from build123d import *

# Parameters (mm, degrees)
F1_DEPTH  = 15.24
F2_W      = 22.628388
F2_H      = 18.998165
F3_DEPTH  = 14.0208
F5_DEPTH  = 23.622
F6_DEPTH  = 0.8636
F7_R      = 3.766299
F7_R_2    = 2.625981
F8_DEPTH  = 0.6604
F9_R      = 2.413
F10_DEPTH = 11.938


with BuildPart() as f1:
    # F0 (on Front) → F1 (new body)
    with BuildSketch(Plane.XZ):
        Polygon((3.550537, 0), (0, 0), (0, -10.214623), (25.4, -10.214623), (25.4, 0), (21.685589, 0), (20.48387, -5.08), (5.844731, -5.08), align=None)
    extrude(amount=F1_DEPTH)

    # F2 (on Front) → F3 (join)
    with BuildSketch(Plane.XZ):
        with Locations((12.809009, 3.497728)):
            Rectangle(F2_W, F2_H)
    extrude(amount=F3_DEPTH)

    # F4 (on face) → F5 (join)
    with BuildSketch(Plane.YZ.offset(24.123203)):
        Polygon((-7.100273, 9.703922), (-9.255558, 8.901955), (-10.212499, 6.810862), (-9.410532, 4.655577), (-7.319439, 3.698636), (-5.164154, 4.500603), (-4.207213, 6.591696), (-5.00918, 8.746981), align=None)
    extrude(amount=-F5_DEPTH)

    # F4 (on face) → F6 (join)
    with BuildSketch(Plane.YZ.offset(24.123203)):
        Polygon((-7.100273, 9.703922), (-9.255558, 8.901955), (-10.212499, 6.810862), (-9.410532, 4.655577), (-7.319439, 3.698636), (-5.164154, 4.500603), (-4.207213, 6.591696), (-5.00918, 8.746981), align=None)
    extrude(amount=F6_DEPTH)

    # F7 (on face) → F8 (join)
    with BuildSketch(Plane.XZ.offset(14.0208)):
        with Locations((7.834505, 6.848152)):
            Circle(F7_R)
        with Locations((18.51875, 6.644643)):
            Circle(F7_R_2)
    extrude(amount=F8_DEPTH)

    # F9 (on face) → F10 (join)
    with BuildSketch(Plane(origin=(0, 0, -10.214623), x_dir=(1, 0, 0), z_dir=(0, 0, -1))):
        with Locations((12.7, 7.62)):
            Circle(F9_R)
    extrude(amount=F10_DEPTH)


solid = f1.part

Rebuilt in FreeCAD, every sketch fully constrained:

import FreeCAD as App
import Part
import Sketcher
Q = App.Units.Quantity

doc = App.newDocument("Part")
body = doc.addObject("PartDesign::Body", "Body")

sketch1 = doc.addObject("Sketcher::SketchObject", "Sketch")
body.addObject(sketch1)
sketch1.AttachmentSupport = (doc.XZ_Plane, [""])
sketch1.MapMode = "FlatFace"
sketch1.addGeometry(Part.LineSegment(App.Vector(3.6, 0, 0), App.Vector(0, 0, 0)), False)
sketch1.addGeometry(Part.LineSegment(App.Vector(0, 0, 0), App.Vector(0, -10.2, 0)), False)
sketch1.addGeometry(Part.LineSegment(App.Vector(0, -10.2, 0), App.Vector(25.4, -10.2, 0)), False)
sketch1.addGeometry(Part.LineSegment(App.Vector(25.4, -10.2, 0), App.Vector(25.4, 0, 0)), False)
sketch1.addGeometry(Part.LineSegment(App.Vector(25.4, 0, 0), App.Vector(21.7, 0, 0)), False)
sketch1.addGeometry(Part.LineSegment(App.Vector(21.7, 0, 0), App.Vector(20.5, -5.1, 0)), False)
sketch1.addGeometry(Part.LineSegment(App.Vector(20.5, -5.1, 0), App.Vector(5.8, -5.1, 0)), False)
sketch1.addGeometry(Part.LineSegment(App.Vector(5.8, -5.1, 0), App.Vector(3.6, 0, 0)), False)
sketch1.addConstraint(Sketcher.Constraint("Coincident", 0, 2, 1, 1))
sketch1.addConstraint(Sketcher.Constraint("Coincident", 1, 2, 2, 1))
sketch1.addConstraint(Sketcher.Constraint("Coincident", 2, 2, 3, 1))
sketch1.addConstraint(Sketcher.Constraint("Coincident", 3, 2, 4, 1))
sketch1.addConstraint(Sketcher.Constraint("Coincident", 4, 2, 5, 1))
sketch1.addConstraint(Sketcher.Constraint("Coincident", 5, 2, 6, 1))
sketch1.addConstraint(Sketcher.Constraint("Coincident", 6, 2, 7, 1))
sketch1.addConstraint(Sketcher.Constraint("Coincident", 7, 2, 0, 1))
sketch1.addConstraint(Sketcher.Constraint("Horizontal", 0))
sketch1.addConstraint(Sketcher.Constraint("Vertical", 1))
sketch1.addConstraint(Sketcher.Constraint("Horizontal", 2))
sketch1.addConstraint(Sketcher.Constraint("Vertical", 3))
sketch1.addConstraint(Sketcher.Constraint("Horizontal", 4))
sketch1.addConstraint(Sketcher.Constraint("Horizontal", 6))
sketch1.addConstraint(Sketcher.Constraint("Coincident", 0, 2, -1, 1))
sketch1.addConstraint(Sketcher.Constraint("PointOnObject", 3, 2, -1))
sketch1.addConstraint(Sketcher.Constraint("DistanceX", 2, 1, 2, 2, Q("1 in")))
sketch1.addConstraint(Sketcher.Constraint("DistanceY", 5, 2, -1, 1, Q("0.2 in")))
sketch1.addConstraint(Sketcher.Constraint("DistanceX", 4, 2, 4, 1, 3.714411))
sketch1.addConstraint(Sketcher.Constraint("DistanceX", 6, 2, 6, 1, 14.639139))
sketch1.addConstraint(Sketcher.Constraint("DistanceX", 0, 2, 0, 1, 3.550537))
sketch1.addConstraint(Sketcher.Constraint("DistanceY", 1, 2, 1, 1, 10.214623))
sketch1.addConstraint(Sketcher.Constraint("DistanceX", -1, 1, 5, 2, 20.48387))
pad1 = doc.addObject("PartDesign::Pad", "Pad")
body.addObject(pad1)
pad1.Profile = sketch1
pad1.Length = Q("0.6 in")

sketch2 = doc.addObject("Sketcher::SketchObject", "Sketch001")
body.addObject(sketch2)
sketch2.AttachmentSupport = (doc.XZ_Plane, [""])
sketch2.MapMode = "FlatFace"
sketch2.addGeometry(Part.LineSegment(App.Vector(1, 13, 0), App.Vector(1, -6, 0)), False)
sketch2.addGeometry(Part.LineSegment(App.Vector(1, -6, 0), App.Vector(24, -6, 0)), False)
sketch2.addGeometry(Part.LineSegment(App.Vector(24, -6, 0), App.Vector(24, 13, 0)), False)
sketch2.addGeometry(Part.LineSegment(App.Vector(24, 13, 0), App.Vector(1, 13, 0)), False)
sketch2.addConstraint(Sketcher.Constraint("Coincident", 0, 2, 1, 1))
sketch2.addConstraint(Sketcher.Constraint("Coincident", 1, 2, 2, 1))
sketch2.addConstraint(Sketcher.Constraint("Coincident", 2, 2, 3, 1))
sketch2.addConstraint(Sketcher.Constraint("Coincident", 3, 2, 0, 1))
sketch2.addConstraint(Sketcher.Constraint("Vertical", 0))
sketch2.addConstraint(Sketcher.Constraint("Horizontal", 1))
sketch2.addConstraint(Sketcher.Constraint("Vertical", 2))
sketch2.addConstraint(Sketcher.Constraint("Horizontal", 3))
sketch2.addConstraint(Sketcher.Constraint("DistanceX", 1, 1, 1, 2, 22.628388))
sketch2.addConstraint(Sketcher.Constraint("DistanceY", 0, 2, 0, 1, 18.998165))
sketch2.addConstraint(Sketcher.Constraint("DistanceY", -1, 1, 2, 2, 12.996811))
sketch2.addConstraint(Sketcher.Constraint("DistanceX", -1, 1, 0, 2, 1.494815))
pad2 = doc.addObject("PartDesign::Pad", "Pad001")
body.addObject(pad2)
pad2.Profile = sketch2
pad2.Length = Q("0.552 in")

sketch3 = doc.addObject("Sketcher::SketchObject", "Sketch002")
body.addObject(sketch3)
sketch3.AttachmentSupport = (doc.YZ_Plane, [""])
sketch3.MapMode = "FlatFace"
sketch3.AttachmentOffset = App.Placement(App.Vector(0, 0, 24.123203), App.Rotation())
sketch3.addGeometry(Part.LineSegment(App.Vector(-7.1, 9.7, 0), App.Vector(-9.3, 8.9, 0)), False)
sketch3.addGeometry(Part.LineSegment(App.Vector(-9.3, 8.9, 0), App.Vector(-10.2, 6.8, 0)), False)
sketch3.addGeometry(Part.LineSegment(App.Vector(-10.2, 6.8, 0), App.Vector(-9.4, 4.7, 0)), False)
sketch3.addGeometry(Part.LineSegment(App.Vector(-9.4, 4.7, 0), App.Vector(-7.3, 3.7, 0)), False)
sketch3.addGeometry(Part.LineSegment(App.Vector(-7.3, 3.7, 0), App.Vector(-5.2, 4.5, 0)), False)
sketch3.addGeometry(Part.LineSegment(App.Vector(-5.2, 4.5, 0), App.Vector(-4.2, 6.6, 0)), False)
sketch3.addGeometry(Part.LineSegment(App.Vector(-4.2, 6.6, 0), App.Vector(-5, 8.7, 0)), False)
sketch3.addGeometry(Part.LineSegment(App.Vector(-5, 8.7, 0), App.Vector(-7.1, 9.7, 0)), False)
sketch3.addConstraint(Sketcher.Constraint("Coincident", 0, 2, 1, 1))
sketch3.addConstraint(Sketcher.Constraint("Coincident", 1, 2, 2, 1))
sketch3.addConstraint(Sketcher.Constraint("Coincident", 2, 2, 3, 1))
sketch3.addConstraint(Sketcher.Constraint("Coincident", 3, 2, 4, 1))
sketch3.addConstraint(Sketcher.Constraint("Coincident", 4, 2, 5, 1))
sketch3.addConstraint(Sketcher.Constraint("Coincident", 5, 2, 6, 1))
sketch3.addConstraint(Sketcher.Constraint("Coincident", 6, 2, 7, 1))
sketch3.addConstraint(Sketcher.Constraint("Coincident", 7, 2, 0, 1))
sketch3.addConstraint(Sketcher.Constraint("Perpendicular", 0, 2))
sketch3.addConstraint(Sketcher.Constraint("Perpendicular", 1, 3))
sketch3.addConstraint(Sketcher.Constraint("Perpendicular", 2, 4))
sketch3.addConstraint(Sketcher.Constraint("Perpendicular", 3, 5))
sketch3.addConstraint(Sketcher.Constraint("Perpendicular", 4, 6))
sketch3.addConstraint(Sketcher.Constraint("Perpendicular", 5, 7))
sketch3.addConstraint(Sketcher.Constraint("Equal", 0, 1))
sketch3.addConstraint(Sketcher.Constraint("Equal", 1, 2))
sketch3.addConstraint(Sketcher.Constraint("Equal", 2, 3))
sketch3.addConstraint(Sketcher.Constraint("Equal", 3, 4))
sketch3.addConstraint(Sketcher.Constraint("Equal", 4, 5))
sketch3.addConstraint(Sketcher.Constraint("DistanceX", 1, 2, 3, 2, Q("0.1139 in")))
sketch3.addConstraint(Sketcher.Constraint("DistanceX", 1, 2, -1, 1, 10.212499))
sketch3.addConstraint(Sketcher.Constraint("DistanceX", 0, 2, -1, 1, 9.255558))
sketch3.addConstraint(Sketcher.Constraint("DistanceX", 6, 2, -1, 1, 5.00918))
sketch3.addConstraint(Sketcher.Constraint("DistanceY", -1, 1, 6, 2, 8.746981))
pad3 = doc.addObject("PartDesign::Pad", "Pad002")
body.addObject(pad3)
pad3.Profile = sketch3
pad3.Length = Q("0.93 in")
pad3.Reversed = True

sketch4 = doc.addObject("Sketcher::SketchObject", "Sketch003")
body.addObject(sketch4)
sketch4.AttachmentSupport = (doc.YZ_Plane, [""])
sketch4.MapMode = "FlatFace"
sketch4.AttachmentOffset = App.Placement(App.Vector(0, 0, 24.123203), App.Rotation())
sketch4.addGeometry(Part.LineSegment(App.Vector(-7.1, 9.7, 0), App.Vector(-9.3, 8.9, 0)), False)
sketch4.addGeometry(Part.LineSegment(App.Vector(-9.3, 8.9, 0), App.Vector(-10.2, 6.8, 0)), False)
sketch4.addGeometry(Part.LineSegment(App.Vector(-10.2, 6.8, 0), App.Vector(-9.4, 4.7, 0)), False)
sketch4.addGeometry(Part.LineSegment(App.Vector(-9.4, 4.7, 0), App.Vector(-7.3, 3.7, 0)), False)
sketch4.addGeometry(Part.LineSegment(App.Vector(-7.3, 3.7, 0), App.Vector(-5.2, 4.5, 0)), False)
sketch4.addGeometry(Part.LineSegment(App.Vector(-5.2, 4.5, 0), App.Vector(-4.2, 6.6, 0)), False)
sketch4.addGeometry(Part.LineSegment(App.Vector(-4.2, 6.6, 0), App.Vector(-5, 8.7, 0)), False)
sketch4.addGeometry(Part.LineSegment(App.Vector(-5, 8.7, 0), App.Vector(-7.1, 9.7, 0)), False)
sketch4.addConstraint(Sketcher.Constraint("Coincident", 0, 2, 1, 1))
sketch4.addConstraint(Sketcher.Constraint("Coincident", 1, 2, 2, 1))
sketch4.addConstraint(Sketcher.Constraint("Coincident", 2, 2, 3, 1))
sketch4.addConstraint(Sketcher.Constraint("Coincident", 3, 2, 4, 1))
sketch4.addConstraint(Sketcher.Constraint("Coincident", 4, 2, 5, 1))
sketch4.addConstraint(Sketcher.Constraint("Coincident", 5, 2, 6, 1))
sketch4.addConstraint(Sketcher.Constraint("Coincident", 6, 2, 7, 1))
sketch4.addConstraint(Sketcher.Constraint("Coincident", 7, 2, 0, 1))
sketch4.addConstraint(Sketcher.Constraint("Perpendicular", 0, 2))
sketch4.addConstraint(Sketcher.Constraint("Perpendicular", 1, 3))
sketch4.addConstraint(Sketcher.Constraint("Perpendicular", 2, 4))
sketch4.addConstraint(Sketcher.Constraint("Perpendicular", 3, 5))
sketch4.addConstraint(Sketcher.Constraint("Perpendicular", 4, 6))
sketch4.addConstraint(Sketcher.Constraint("Perpendicular", 5, 7))
sketch4.addConstraint(Sketcher.Constraint("Equal", 0, 1))
sketch4.addConstraint(Sketcher.Constraint("Equal", 1, 2))
sketch4.addConstraint(Sketcher.Constraint("Equal", 2, 3))
sketch4.addConstraint(Sketcher.Constraint("Equal", 3, 4))
sketch4.addConstraint(Sketcher.Constraint("Equal", 4, 5))
sketch4.addConstraint(Sketcher.Constraint("DistanceX", 1, 2, 3, 2, Q("0.1139 in")))
sketch4.addConstraint(Sketcher.Constraint("DistanceX", 1, 2, -1, 1, 10.212499))
sketch4.addConstraint(Sketcher.Constraint("DistanceX", 0, 2, -1, 1, 9.255558))
sketch4.addConstraint(Sketcher.Constraint("DistanceX", 6, 2, -1, 1, 5.00918))
sketch4.addConstraint(Sketcher.Constraint("DistanceY", -1, 1, 6, 2, 8.746981))
pad4 = doc.addObject("PartDesign::Pad", "Pad003")
body.addObject(pad4)
pad4.Profile = sketch4
pad4.Length = Q("0.034 in")

sketch5 = doc.addObject("Sketcher::SketchObject", "Sketch004")
body.addObject(sketch5)
sketch5.AttachmentSupport = (doc.XZ_Plane, [""])
sketch5.MapMode = "FlatFace"
sketch5.AttachmentOffset = App.Placement(App.Vector(0, 0, 0.552 * 25.4), App.Rotation())
sketch5.addGeometry(Part.Circle(App.Vector(7.8, 6.8, 0), App.Vector(0, 0, 1), 3.8), False)
sketch5.addGeometry(Part.Circle(App.Vector(18.5, 6.6, 0), App.Vector(0, 0, 1), 2.6), False)
sketch5.addConstraint(Sketcher.Constraint("Diameter", 1, 5.251962))
sketch5.addConstraint(Sketcher.Constraint("Diameter", 0, 7.532598))
sketch5.addConstraint(Sketcher.Constraint("DistanceY", -1, 1, 1, 3, Q("0.2616001 in")))
sketch5.addConstraint(Sketcher.Constraint("DistanceY", -1, 1, 0, 3, 6.848152))
sketch5.addConstraint(Sketcher.Constraint("DistanceX", -1, 1, 1, 3, 18.51875))
sketch5.addConstraint(Sketcher.Constraint("DistanceX", -1, 1, 0, 3, 7.834505))
pad5 = doc.addObject("PartDesign::Pad", "Pad004")
body.addObject(pad5)
pad5.Profile = sketch5
pad5.Length = Q("0.026 in")

sketch6 = doc.addObject("Sketcher::SketchObject", "Sketch005")
body.addObject(sketch6)
sketch6.AttachmentSupport = (doc.XY_Plane, [""])
sketch6.MapMode = "FlatFace"
sketch6.AttachmentOffset = App.Placement(App.Vector(0, 0, -10.214623), App.Rotation())
sketch6.addGeometry(Part.Circle(App.Vector(12.7, -7.6, 0), App.Vector(0, 0, 1), 2.4), False)
sketch6.addConstraint(Sketcher.Constraint("Diameter", 0, Q("0.19 in")))
sketch6.addConstraint(Sketcher.Constraint("DistanceX", -1, 1, 0, 3, Q("0.5 in")))
sketch6.addConstraint(Sketcher.Constraint("DistanceY", 0, 3, -1, 1, Q("0.3 in")))
pad6 = doc.addObject("PartDesign::Pad", "Pad005")
body.addObject(pad6)
pad6.Profile = sketch6
pad6.Length = Q("0.47 in")
pad6.Reversed = True

doc.recompute()
